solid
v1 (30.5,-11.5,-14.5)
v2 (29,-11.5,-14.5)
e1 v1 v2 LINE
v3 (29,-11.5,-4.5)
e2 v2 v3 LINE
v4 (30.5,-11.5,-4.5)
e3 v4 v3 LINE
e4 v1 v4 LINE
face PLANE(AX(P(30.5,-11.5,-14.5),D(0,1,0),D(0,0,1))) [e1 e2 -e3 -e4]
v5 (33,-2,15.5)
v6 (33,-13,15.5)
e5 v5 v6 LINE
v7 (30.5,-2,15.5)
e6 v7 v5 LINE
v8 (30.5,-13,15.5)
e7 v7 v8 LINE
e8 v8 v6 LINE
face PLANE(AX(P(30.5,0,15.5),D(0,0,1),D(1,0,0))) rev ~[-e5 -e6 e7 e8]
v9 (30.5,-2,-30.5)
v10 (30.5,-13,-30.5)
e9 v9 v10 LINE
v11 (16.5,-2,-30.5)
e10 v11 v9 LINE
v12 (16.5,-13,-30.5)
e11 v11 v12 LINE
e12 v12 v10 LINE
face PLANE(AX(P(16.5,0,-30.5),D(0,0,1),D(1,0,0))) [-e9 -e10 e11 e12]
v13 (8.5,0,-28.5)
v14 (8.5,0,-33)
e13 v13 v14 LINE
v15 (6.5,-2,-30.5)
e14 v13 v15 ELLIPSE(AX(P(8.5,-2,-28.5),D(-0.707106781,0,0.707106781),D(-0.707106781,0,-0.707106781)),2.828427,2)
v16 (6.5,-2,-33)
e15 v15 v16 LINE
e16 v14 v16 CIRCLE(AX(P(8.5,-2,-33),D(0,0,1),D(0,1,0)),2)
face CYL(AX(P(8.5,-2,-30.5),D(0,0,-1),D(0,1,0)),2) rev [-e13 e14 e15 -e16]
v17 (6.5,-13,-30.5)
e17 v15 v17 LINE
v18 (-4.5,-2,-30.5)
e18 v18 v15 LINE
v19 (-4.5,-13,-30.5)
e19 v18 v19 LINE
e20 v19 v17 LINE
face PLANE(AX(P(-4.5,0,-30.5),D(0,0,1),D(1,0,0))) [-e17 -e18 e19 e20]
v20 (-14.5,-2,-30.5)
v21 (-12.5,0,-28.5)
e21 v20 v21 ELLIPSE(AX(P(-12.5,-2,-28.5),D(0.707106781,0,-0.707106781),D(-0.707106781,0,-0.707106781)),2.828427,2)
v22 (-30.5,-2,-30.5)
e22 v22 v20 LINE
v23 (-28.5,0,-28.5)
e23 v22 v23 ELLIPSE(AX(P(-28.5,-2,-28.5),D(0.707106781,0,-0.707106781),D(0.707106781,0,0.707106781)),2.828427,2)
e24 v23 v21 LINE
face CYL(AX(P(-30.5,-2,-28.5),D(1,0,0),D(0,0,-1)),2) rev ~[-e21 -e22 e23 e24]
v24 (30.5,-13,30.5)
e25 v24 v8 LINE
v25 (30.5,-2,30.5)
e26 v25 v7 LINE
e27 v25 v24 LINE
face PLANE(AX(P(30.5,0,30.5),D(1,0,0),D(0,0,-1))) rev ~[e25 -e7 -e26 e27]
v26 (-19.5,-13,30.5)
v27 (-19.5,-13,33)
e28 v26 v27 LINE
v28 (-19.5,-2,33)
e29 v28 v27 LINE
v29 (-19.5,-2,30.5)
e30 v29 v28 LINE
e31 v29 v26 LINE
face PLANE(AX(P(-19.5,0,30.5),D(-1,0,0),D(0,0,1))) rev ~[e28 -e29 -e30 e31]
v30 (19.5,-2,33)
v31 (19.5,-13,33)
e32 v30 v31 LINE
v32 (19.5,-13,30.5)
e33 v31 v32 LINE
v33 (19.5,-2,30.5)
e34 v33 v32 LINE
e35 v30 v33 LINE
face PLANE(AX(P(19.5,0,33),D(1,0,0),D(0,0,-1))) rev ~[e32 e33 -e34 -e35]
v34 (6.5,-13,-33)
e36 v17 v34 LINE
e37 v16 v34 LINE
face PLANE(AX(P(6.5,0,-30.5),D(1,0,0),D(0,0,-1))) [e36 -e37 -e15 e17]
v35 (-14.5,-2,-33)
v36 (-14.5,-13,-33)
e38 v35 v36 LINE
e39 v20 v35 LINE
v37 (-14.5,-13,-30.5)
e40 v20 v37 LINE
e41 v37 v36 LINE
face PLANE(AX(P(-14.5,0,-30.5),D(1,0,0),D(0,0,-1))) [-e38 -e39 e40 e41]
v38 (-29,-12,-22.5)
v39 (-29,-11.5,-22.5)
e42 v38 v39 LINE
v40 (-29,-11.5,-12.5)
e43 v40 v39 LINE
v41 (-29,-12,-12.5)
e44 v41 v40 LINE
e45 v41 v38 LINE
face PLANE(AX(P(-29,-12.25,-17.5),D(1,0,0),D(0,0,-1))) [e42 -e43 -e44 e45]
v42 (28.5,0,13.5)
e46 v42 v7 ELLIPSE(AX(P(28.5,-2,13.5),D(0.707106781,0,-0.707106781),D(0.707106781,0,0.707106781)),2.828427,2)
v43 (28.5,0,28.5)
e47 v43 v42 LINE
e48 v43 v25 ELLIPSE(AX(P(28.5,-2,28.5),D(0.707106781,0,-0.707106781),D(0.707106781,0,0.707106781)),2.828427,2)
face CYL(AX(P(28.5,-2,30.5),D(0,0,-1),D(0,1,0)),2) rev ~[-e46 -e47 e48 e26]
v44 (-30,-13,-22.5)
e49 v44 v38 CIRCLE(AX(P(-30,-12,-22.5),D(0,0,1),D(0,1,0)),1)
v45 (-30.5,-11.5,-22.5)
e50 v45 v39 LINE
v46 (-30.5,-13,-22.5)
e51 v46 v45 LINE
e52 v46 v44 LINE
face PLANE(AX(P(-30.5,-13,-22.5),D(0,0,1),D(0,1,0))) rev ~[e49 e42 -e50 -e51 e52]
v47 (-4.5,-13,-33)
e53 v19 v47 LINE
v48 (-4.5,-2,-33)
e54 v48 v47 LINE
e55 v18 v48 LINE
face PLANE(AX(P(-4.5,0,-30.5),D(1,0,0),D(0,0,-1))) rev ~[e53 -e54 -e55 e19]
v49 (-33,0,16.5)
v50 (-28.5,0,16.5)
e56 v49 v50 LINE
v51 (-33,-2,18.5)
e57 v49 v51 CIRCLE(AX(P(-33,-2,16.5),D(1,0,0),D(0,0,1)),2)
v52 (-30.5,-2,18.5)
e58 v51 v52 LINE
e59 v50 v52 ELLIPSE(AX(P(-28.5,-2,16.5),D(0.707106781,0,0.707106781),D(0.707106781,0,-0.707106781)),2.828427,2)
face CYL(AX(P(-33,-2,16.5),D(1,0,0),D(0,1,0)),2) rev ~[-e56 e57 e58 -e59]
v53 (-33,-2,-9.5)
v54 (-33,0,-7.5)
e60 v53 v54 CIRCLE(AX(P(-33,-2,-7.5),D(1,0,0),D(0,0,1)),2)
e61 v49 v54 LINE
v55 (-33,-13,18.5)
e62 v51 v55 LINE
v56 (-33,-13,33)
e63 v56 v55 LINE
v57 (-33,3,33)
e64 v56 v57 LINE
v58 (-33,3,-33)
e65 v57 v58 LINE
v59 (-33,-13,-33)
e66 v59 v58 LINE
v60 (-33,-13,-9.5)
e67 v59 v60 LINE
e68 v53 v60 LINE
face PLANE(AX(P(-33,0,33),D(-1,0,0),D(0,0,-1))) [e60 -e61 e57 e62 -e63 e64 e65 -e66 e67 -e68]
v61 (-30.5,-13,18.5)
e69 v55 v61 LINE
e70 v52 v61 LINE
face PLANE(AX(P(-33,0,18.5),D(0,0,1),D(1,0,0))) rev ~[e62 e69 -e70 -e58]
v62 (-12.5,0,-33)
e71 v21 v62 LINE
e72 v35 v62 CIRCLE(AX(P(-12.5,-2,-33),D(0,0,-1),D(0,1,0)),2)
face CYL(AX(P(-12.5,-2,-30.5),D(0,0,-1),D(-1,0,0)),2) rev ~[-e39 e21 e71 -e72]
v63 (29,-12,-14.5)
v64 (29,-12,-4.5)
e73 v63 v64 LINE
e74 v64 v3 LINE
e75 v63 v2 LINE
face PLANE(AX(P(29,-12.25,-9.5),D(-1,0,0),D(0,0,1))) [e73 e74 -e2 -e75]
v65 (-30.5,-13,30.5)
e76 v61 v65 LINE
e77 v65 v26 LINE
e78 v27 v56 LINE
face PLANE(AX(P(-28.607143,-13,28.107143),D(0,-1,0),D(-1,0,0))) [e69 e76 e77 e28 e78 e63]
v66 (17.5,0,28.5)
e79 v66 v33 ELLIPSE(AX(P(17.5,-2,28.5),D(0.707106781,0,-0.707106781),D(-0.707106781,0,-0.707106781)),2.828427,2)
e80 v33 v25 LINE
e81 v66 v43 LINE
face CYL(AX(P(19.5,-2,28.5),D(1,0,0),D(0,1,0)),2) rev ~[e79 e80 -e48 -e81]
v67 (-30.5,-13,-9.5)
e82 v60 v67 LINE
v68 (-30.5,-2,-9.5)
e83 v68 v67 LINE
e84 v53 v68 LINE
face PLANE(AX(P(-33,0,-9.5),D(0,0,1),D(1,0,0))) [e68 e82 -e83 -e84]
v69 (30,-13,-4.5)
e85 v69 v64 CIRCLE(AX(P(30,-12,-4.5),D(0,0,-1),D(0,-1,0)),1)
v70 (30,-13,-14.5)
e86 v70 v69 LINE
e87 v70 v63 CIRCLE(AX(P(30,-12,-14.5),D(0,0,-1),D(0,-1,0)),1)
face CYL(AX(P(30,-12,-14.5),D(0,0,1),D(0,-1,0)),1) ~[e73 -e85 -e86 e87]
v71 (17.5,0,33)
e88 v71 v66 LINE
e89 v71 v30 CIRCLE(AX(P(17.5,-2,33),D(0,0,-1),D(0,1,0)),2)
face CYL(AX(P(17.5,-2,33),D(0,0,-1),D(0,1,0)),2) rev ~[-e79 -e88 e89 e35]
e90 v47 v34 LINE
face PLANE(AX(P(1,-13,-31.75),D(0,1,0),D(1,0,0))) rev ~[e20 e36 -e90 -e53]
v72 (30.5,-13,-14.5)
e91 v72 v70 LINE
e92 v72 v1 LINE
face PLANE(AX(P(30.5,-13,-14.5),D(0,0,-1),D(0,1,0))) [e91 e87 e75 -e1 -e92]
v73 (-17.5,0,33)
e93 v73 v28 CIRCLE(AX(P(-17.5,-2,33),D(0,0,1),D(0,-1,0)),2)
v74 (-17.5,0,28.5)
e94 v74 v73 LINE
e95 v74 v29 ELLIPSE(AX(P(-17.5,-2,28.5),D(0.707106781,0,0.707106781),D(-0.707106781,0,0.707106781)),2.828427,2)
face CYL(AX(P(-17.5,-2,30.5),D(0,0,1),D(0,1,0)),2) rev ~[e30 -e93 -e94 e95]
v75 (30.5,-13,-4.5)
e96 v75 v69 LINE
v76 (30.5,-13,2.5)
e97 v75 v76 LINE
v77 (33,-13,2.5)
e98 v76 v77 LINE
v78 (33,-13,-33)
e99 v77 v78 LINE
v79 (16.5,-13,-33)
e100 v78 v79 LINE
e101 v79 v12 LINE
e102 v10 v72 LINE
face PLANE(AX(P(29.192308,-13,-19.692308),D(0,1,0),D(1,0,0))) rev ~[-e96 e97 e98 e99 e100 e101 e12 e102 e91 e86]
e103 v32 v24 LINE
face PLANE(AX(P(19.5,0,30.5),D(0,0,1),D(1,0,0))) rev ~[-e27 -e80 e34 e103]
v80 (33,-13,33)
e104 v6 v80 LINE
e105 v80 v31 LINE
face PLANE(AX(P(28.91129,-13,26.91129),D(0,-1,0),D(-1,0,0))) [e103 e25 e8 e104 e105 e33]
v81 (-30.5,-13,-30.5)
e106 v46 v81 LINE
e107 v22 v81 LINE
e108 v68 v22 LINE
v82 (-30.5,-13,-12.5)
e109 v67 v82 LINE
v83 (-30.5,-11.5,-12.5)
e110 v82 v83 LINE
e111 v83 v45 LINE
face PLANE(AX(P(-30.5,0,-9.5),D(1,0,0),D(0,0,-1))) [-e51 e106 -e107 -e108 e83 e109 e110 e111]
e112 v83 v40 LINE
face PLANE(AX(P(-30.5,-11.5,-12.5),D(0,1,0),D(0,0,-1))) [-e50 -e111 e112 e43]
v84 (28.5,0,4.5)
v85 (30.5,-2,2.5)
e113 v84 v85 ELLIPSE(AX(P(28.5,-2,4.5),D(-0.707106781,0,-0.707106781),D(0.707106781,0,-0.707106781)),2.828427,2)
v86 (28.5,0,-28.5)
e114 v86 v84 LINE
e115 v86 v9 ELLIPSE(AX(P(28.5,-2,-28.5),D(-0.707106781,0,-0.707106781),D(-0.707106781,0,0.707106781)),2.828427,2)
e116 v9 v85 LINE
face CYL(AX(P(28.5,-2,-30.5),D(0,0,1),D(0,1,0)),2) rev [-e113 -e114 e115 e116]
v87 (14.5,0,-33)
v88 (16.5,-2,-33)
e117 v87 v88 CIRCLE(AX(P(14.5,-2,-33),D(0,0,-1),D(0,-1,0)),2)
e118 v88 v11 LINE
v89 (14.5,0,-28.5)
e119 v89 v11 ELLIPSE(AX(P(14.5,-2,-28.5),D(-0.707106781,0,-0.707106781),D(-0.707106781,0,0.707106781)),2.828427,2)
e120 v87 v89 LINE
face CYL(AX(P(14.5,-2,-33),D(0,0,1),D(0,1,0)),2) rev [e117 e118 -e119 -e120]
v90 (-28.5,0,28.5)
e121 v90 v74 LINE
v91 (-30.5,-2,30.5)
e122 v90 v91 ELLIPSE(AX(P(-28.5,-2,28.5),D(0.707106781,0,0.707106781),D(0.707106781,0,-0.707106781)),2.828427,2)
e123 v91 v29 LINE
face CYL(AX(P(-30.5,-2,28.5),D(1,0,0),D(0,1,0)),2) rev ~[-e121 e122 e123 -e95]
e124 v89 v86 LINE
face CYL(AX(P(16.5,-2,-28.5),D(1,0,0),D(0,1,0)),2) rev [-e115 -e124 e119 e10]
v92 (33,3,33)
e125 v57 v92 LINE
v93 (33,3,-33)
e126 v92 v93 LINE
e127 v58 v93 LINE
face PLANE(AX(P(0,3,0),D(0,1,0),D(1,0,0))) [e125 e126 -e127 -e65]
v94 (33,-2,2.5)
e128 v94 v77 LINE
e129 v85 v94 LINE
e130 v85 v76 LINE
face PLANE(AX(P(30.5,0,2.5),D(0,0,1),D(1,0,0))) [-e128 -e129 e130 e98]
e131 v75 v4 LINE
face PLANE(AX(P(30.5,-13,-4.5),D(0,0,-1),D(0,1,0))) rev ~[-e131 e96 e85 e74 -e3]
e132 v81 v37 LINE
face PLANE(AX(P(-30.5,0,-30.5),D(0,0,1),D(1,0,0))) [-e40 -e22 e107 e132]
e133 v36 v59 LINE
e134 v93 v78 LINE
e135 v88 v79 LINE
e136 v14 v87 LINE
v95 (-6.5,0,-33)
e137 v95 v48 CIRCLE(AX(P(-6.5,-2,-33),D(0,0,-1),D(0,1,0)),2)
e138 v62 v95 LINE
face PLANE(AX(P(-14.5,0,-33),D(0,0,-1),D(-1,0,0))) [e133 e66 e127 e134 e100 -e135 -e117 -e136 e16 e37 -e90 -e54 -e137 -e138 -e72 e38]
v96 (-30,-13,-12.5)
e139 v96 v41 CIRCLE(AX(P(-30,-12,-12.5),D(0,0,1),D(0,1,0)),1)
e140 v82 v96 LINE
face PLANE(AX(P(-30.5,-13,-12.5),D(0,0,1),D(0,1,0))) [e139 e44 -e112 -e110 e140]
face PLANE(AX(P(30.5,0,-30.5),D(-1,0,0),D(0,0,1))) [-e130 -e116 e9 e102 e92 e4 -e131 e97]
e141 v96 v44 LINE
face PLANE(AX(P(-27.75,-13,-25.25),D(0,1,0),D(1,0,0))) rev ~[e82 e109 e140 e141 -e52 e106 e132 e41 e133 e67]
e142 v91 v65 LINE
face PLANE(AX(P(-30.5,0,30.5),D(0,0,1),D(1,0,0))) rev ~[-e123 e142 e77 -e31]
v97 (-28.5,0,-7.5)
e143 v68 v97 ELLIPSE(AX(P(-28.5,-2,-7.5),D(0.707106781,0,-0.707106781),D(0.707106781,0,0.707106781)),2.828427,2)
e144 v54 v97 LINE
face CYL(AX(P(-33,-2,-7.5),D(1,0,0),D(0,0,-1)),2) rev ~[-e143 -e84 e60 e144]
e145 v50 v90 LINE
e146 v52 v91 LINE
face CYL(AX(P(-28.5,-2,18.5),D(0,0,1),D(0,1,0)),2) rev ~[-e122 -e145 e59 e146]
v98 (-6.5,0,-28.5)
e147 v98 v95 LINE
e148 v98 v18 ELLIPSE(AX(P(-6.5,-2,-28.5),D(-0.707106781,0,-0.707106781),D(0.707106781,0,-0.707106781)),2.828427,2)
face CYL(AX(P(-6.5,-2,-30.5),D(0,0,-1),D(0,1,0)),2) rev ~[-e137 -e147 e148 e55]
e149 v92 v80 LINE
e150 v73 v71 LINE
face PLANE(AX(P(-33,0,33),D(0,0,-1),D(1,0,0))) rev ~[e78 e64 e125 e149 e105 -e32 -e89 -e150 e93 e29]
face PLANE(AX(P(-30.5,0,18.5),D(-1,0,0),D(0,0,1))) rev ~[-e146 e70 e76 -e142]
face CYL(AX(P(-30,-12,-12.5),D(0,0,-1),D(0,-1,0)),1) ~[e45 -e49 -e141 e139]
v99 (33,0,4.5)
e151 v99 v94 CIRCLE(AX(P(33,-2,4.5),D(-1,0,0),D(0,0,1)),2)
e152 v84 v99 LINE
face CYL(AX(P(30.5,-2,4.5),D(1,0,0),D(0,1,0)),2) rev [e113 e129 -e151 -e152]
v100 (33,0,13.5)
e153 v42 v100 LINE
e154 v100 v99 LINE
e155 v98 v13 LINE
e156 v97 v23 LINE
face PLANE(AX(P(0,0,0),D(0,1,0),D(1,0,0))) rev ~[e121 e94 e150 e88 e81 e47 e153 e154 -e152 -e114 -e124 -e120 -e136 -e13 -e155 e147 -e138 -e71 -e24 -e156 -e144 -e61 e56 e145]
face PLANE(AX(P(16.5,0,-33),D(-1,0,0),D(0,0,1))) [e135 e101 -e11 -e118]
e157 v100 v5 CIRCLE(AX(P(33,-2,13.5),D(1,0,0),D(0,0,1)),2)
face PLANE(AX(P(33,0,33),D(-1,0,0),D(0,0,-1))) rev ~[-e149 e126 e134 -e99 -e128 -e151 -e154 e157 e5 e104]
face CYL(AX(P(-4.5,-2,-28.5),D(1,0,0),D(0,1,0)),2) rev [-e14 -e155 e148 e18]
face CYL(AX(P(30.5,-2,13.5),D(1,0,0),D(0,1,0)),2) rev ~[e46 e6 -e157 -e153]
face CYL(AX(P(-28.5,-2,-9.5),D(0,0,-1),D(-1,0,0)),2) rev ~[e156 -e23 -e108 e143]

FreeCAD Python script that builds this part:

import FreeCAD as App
import Part
import Sketcher
from FreeCAD import Vector


def edges_at(feature, points):
    """Names of the edges that pass closest to the given points."""
    edges = feature.Shape.Edges
    near = lambda p: min(range(len(edges)), key=lambda i: edges[i].distToShape(Part.Vertex(*p))[0])
    return sorted({f"Edge{near(p) + 1}" for p in points})


def add_polygon(sketch, points):
    """Adds a closed chain of lines whose ends are joined by coincident constraints."""
    first, n = sketch.GeometryCount, len(points)
    for a, b in zip(points, points[1:] + points[:1]):
        sketch.addGeometry(Part.LineSegment(App.Vector(*a, 0), App.Vector(*b, 0)), False)
    for i in range(n):
        sketch.addConstraint(Sketcher.Constraint("Coincident", first + i, 2, first + (i + 1) % n, 1))

doc = App.newDocument("Part")
body = doc.addObject("PartDesign::Body", "Body")

# Sketch on XZ plane
sketch1 = body.newObject("Sketcher::SketchObject", "Sketch")
sketch1.AttachmentSupport = (doc.getObject("XZ_Plane"), [""])
sketch1.MapMode = "FlatFace"
add_polygon(sketch1, [(-33, -33), (-33, 33), (33, 33), (33, -33)])  # lines 0-3
sketch1.addConstraint(Sketcher.Constraint("Vertical", 0))
sketch1.addConstraint(Sketcher.Constraint("Horizontal", 1))
sketch1.addConstraint(Sketcher.Constraint("Vertical", 2))
sketch1.addConstraint(Sketcher.Constraint("Horizontal", 3))
sketch1.addConstraint(Sketcher.Constraint("Symmetric", 0, 2, 2, 2, -1, 1))
sketch1.addConstraint(Sketcher.Constraint("Equal", 3, 0))
sketch1.addConstraint(Sketcher.Constraint("DistanceX", 1, 1, 1, 2, 66.0))
pad1 = body.newObject("PartDesign::Pad", "Pad")
pad1.Profile = sketch1
pad1.Length = 3
pad1.Reversed = True

# Sketch on XZ plane
sketch2 = body.newObject("Sketcher::SketchObject", "Sketch001")
sketch2.AttachmentSupport = (doc.getObject("XZ_Plane"), [""])
sketch2.MapMode = "FlatFace"
add_polygon(sketch2, [(-30.5, -30.5), (-14.5, -30.5), (-14.5, -33), (-33, -33), (-33, -9.5), (-30.5, -9.5)])  # lines 0-5
add_polygon(sketch2, [(-19.5, 30.5), (-30.5, 30.5), (-30.5, 18.5), (-33, 18.5), (-33, 33), (-19.5, 33)])  # lines 6-11
add_polygon(sketch2, [(30.5, -30.5), (30.5, 2.5), (33, 2.5), (33, -33), (16.5, -33), (16.5, -30.5)])  # lines 12-17
add_polygon(sketch2, [(-4.5, -33), (-4.5, -30.5), (6.5, -30.5), (6.5, -33)])  # lines 18-21
add_polygon(sketch2, [(33, 15.5), (30.5, 15.5), (30.5, 30.5), (19.5, 30.5), (19.5, 33), (33, 33)])  # lines 22-27
sketch2.addConstraint(Sketcher.Constraint("Horizontal", 0))
sketch2.addConstraint(Sketcher.Constraint("Vertical", 1))
sketch2.addConstraint(Sketcher.Constraint("Horizontal", 2))
sketch2.addConstraint(Sketcher.Constraint("Vertical", 3))
sketch2.addConstraint(Sketcher.Constraint("Horizontal", 4))
sketch2.addConstraint(Sketcher.Constraint("Vertical", 5))
sketch2.addConstraint(Sketcher.Constraint("Horizontal", 6))
sketch2.addConstraint(Sketcher.Constraint("Vertical", 7))
sketch2.addConstraint(Sketcher.Constraint("Horizontal", 8))
sketch2.addConstraint(Sketcher.Constraint("Vertical", 9))
sketch2.addConstraint(Sketcher.Constraint("Horizontal", 10))
sketch2.addConstraint(Sketcher.Constraint("Vertical", 11))
sketch2.addConstraint(Sketcher.Constraint("Vertical", 12))
sketch2.addConstraint(Sketcher.Constraint("Horizontal", 13))
sketch2.addConstraint(Sketcher.Constraint("Vertical", 14))
sketch2.addConstraint(Sketcher.Constraint("Horizontal", 15))
sketch2.addConstraint(Sketcher.Constraint("Vertical", 16))
sketch2.addConstraint(Sketcher.Constraint("Horizontal", 17))
sketch2.addConstraint(Sketcher.Constraint("Vertical", 18))
sketch2.addConstraint(Sketcher.Constraint("Horizontal", 19))
sketch2.addConstraint(Sketcher.Constraint("Vertical", 20))
sketch2.addConstraint(Sketcher.Constraint("Horizontal", 21))
sketch2.addConstraint(Sketcher.Constraint("Horizontal", 22))
sketch2.addConstraint(Sketcher.Constraint("Vertical", 23))
sketch2.addConstraint(Sketcher.Constraint("Horizontal", 24))
sketch2.addConstraint(Sketcher.Constraint("Vertical", 25))
sketch2.addConstraint(Sketcher.Constraint("Horizontal", 26))
sketch2.addConstraint(Sketcher.Constraint("Vertical", 27))
sketch2.addConstraint(Sketcher.Constraint("Symmetric", 9, 2, 14, 2, -1, 1))
sketch2.addConstraint(Sketcher.Constraint("Symmetric", 6, 2, 17, 2, -1, 1))
sketch2.addConstraint(Sketcher.Constraint("Symmetric", 5, 2, 23, 2, -1, 1))
sketch2.addConstraint(Sketcher.Constraint("Symmetric", 2, 2, 26, 2, -1, 1))
sketch2.addConstraint(Sketcher.Constraint("Symmetric", 2, 2, 14, 2, -2))
sketch2.addConstraint(Sketcher.Constraint("Symmetric", 5, 2, 17, 2, -2))
sketch2.addConstraint(Sketcher.Constraint("Horizontal", 17, 2, 18, 2))
sketch2.addConstraint(Sketcher.Constraint("Horizontal", 15, 2, 20, 2))
sketch2.addConstraint(Sketcher.Constraint("Equal", 6, 19))
sketch2.addConstraint(Sketcher.Constraint("Equal", 21, 24))
sketch2.addConstraint(Sketcher.Constraint("Equal", 22, 1))
sketch2.addConstraint(Sketcher.Constraint("DistanceX", 0, 1, 0, 2, 16.0))
sketch2.addConstraint(Sketcher.Constraint("DistanceX", 6, 2, 6, 1, 11.0))
sketch2.addConstraint(Sketcher.Constraint("DistanceX", 17, 1, 17, 2, 14.0))
sketch2.addConstraint(Sketcher.Constraint("DistanceY", 5, 2, 5, 1, 21.0))
sketch2.addConstraint(Sketcher.Constraint("DistanceY", 7, 2, 7, 1, 12.0))
sketch2.addConstraint(Sketcher.Constraint("DistanceY", 12, 1, 12, 2, 33.0))
sketch2.addConstraint(Sketcher.Constraint("DistanceY", 23, 1, 23, 2, 15.0))
sketch2.addConstraint(Sketcher.Constraint("DistanceX", 2, 2, 2, 1, 18.5))
sketch2.addConstraint(Sketcher.Constraint("DistanceY", 1, 2, -1, 1, 33.0))
sketch2.addConstraint(Sketcher.Constraint("DistanceX", 2, 2, -1, 1, 33.0))
sketch2.addConstraint(Sketcher.Constraint("DistanceX", 0, 2, 18, 2, 10.0))
pad2 = body.newObject("PartDesign::Pad", "Pad001")
pad2.Profile = sketch2
pad2.Length = 13

# Sketch on YZ plane
sketch3 = body.newObject("Sketcher::SketchObject", "Sketch002")
sketch3.AttachmentSupport = (doc.getObject("YZ_Plane"), [""])
sketch3.MapMode = "FlatFace"
sketch3.AttachmentOffset = App.Placement(Vector(0, 0, 30.5), App.Rotation())
add_polygon(sketch3, [(-11.5, -14.5), (-13, -14.5), (-13, -4.5), (-11.5, -4.5)])  # lines 0-3
sketch3.addConstraint(Sketcher.Constraint("Horizontal", 0))
sketch3.addConstraint(Sketcher.Constraint("Vertical", 1))
sketch3.addConstraint(Sketcher.Constraint("Horizontal", 2))
sketch3.addConstraint(Sketcher.Constraint("Vertical", 3))
sketch3.addConstraint(Sketcher.Constraint("DistanceY", 1, 1, 1, 2, 10.0))
sketch3.addConstraint(Sketcher.Constraint("DistanceX", 0, 2, 0, 1, 1.5))
sketch3.addConstraint(Sketcher.Constraint("DistanceX", 0, 2, -1, 1, 13.0))
sketch3.addConstraint(Sketcher.Constraint("DistanceY", 0, 2, -1, 1, 14.5))
pad3 = body.newObject("PartDesign::Pad", "Pad002")
pad3.Profile = sketch3
pad3.Length = 1.5
pad3.Reversed = True
doc.recompute()

fillet = body.newObject("PartDesign::Fillet", "Fillet")
fillet.Base = (pad3, edges_at(pad3, [(29, -13, -9.5)]))
fillet.Radius = 1

# Sketch on YZ plane
sketch4 = body.newObject("Sketcher::SketchObject", "Sketch003")
sketch4.AttachmentSupport = (doc.getObject("YZ_Plane"), [""])
sketch4.MapMode = "FlatFace"
sketch4.AttachmentOffset = App.Placement(Vector(0, 0, -30.5), App.Rotation())
add_polygon(sketch4, [(-11.5, -12.5), (-13, -12.5), (-13, -22.5), (-11.5, -22.5)])  # lines 0-3
sketch4.addConstraint(Sketcher.Constraint("Horizontal", 0))
sketch4.addConstraint(Sketcher.Constraint("Vertical", 1))
sketch4.addConstraint(Sketcher.Constraint("Horizontal", 2))
sketch4.addConstraint(Sketcher.Constraint("Vertical", 3))
sketch4.addConstraint(Sketcher.Constraint("DistanceY", 1, 2, 1, 1, 10.0))
sketch4.addConstraint(Sketcher.Constraint("DistanceX", 0, 2, 0, 1, 1.5))
sketch4.addConstraint(Sketcher.Constraint("DistanceX", 0, 2, -1, 1, 13.0))
sketch4.addConstraint(Sketcher.Constraint("DistanceY", 0, 2, -1, 1, 12.5))
pad4 = body.newObject("PartDesign::Pad", "Pad003")
pad4.Profile = sketch4
pad4.Length = 1.5
doc.recompute()

fillet2 = body.newObject("PartDesign::Fillet", "Fillet001")
fillet2.Base = (pad4, edges_at(pad4, [(-29, -13, -17.5)]))
fillet2.Radius = 1
doc.recompute()

fillet3 = body.newObject("PartDesign::Fillet", "Fillet002")
fillet3.Base = (fillet2, edges_at(fillet2, [
    (31.75, 0, 15.5),
    (-31.75, 0, 18.5),
    (19.5, 0, 31.75),
    (-4.5, 0, -31.75),
    (31.75, 0, 2.5),
    (-19.5, 0, 31.75),
    (-31.75, 0, -9.5),
    (-14.5, 0, -31.75),
    (6.5, 0, -31.75),
    (16.5, 0, -31.75),
    (25, 0, 30.5),
    (-25, 0, 30.5),
    (-30.5, 0, 24.5),
    (30.5, 0, 23),
    (30.5, 0, -14),
    (23.5, 0, -30.5),
    (1, 0, -30.5),
    (-22.5, 0, -30.5),
    (-30.5, 0, -20),
]))
fillet3.Radius = 2

doc.recompute()
